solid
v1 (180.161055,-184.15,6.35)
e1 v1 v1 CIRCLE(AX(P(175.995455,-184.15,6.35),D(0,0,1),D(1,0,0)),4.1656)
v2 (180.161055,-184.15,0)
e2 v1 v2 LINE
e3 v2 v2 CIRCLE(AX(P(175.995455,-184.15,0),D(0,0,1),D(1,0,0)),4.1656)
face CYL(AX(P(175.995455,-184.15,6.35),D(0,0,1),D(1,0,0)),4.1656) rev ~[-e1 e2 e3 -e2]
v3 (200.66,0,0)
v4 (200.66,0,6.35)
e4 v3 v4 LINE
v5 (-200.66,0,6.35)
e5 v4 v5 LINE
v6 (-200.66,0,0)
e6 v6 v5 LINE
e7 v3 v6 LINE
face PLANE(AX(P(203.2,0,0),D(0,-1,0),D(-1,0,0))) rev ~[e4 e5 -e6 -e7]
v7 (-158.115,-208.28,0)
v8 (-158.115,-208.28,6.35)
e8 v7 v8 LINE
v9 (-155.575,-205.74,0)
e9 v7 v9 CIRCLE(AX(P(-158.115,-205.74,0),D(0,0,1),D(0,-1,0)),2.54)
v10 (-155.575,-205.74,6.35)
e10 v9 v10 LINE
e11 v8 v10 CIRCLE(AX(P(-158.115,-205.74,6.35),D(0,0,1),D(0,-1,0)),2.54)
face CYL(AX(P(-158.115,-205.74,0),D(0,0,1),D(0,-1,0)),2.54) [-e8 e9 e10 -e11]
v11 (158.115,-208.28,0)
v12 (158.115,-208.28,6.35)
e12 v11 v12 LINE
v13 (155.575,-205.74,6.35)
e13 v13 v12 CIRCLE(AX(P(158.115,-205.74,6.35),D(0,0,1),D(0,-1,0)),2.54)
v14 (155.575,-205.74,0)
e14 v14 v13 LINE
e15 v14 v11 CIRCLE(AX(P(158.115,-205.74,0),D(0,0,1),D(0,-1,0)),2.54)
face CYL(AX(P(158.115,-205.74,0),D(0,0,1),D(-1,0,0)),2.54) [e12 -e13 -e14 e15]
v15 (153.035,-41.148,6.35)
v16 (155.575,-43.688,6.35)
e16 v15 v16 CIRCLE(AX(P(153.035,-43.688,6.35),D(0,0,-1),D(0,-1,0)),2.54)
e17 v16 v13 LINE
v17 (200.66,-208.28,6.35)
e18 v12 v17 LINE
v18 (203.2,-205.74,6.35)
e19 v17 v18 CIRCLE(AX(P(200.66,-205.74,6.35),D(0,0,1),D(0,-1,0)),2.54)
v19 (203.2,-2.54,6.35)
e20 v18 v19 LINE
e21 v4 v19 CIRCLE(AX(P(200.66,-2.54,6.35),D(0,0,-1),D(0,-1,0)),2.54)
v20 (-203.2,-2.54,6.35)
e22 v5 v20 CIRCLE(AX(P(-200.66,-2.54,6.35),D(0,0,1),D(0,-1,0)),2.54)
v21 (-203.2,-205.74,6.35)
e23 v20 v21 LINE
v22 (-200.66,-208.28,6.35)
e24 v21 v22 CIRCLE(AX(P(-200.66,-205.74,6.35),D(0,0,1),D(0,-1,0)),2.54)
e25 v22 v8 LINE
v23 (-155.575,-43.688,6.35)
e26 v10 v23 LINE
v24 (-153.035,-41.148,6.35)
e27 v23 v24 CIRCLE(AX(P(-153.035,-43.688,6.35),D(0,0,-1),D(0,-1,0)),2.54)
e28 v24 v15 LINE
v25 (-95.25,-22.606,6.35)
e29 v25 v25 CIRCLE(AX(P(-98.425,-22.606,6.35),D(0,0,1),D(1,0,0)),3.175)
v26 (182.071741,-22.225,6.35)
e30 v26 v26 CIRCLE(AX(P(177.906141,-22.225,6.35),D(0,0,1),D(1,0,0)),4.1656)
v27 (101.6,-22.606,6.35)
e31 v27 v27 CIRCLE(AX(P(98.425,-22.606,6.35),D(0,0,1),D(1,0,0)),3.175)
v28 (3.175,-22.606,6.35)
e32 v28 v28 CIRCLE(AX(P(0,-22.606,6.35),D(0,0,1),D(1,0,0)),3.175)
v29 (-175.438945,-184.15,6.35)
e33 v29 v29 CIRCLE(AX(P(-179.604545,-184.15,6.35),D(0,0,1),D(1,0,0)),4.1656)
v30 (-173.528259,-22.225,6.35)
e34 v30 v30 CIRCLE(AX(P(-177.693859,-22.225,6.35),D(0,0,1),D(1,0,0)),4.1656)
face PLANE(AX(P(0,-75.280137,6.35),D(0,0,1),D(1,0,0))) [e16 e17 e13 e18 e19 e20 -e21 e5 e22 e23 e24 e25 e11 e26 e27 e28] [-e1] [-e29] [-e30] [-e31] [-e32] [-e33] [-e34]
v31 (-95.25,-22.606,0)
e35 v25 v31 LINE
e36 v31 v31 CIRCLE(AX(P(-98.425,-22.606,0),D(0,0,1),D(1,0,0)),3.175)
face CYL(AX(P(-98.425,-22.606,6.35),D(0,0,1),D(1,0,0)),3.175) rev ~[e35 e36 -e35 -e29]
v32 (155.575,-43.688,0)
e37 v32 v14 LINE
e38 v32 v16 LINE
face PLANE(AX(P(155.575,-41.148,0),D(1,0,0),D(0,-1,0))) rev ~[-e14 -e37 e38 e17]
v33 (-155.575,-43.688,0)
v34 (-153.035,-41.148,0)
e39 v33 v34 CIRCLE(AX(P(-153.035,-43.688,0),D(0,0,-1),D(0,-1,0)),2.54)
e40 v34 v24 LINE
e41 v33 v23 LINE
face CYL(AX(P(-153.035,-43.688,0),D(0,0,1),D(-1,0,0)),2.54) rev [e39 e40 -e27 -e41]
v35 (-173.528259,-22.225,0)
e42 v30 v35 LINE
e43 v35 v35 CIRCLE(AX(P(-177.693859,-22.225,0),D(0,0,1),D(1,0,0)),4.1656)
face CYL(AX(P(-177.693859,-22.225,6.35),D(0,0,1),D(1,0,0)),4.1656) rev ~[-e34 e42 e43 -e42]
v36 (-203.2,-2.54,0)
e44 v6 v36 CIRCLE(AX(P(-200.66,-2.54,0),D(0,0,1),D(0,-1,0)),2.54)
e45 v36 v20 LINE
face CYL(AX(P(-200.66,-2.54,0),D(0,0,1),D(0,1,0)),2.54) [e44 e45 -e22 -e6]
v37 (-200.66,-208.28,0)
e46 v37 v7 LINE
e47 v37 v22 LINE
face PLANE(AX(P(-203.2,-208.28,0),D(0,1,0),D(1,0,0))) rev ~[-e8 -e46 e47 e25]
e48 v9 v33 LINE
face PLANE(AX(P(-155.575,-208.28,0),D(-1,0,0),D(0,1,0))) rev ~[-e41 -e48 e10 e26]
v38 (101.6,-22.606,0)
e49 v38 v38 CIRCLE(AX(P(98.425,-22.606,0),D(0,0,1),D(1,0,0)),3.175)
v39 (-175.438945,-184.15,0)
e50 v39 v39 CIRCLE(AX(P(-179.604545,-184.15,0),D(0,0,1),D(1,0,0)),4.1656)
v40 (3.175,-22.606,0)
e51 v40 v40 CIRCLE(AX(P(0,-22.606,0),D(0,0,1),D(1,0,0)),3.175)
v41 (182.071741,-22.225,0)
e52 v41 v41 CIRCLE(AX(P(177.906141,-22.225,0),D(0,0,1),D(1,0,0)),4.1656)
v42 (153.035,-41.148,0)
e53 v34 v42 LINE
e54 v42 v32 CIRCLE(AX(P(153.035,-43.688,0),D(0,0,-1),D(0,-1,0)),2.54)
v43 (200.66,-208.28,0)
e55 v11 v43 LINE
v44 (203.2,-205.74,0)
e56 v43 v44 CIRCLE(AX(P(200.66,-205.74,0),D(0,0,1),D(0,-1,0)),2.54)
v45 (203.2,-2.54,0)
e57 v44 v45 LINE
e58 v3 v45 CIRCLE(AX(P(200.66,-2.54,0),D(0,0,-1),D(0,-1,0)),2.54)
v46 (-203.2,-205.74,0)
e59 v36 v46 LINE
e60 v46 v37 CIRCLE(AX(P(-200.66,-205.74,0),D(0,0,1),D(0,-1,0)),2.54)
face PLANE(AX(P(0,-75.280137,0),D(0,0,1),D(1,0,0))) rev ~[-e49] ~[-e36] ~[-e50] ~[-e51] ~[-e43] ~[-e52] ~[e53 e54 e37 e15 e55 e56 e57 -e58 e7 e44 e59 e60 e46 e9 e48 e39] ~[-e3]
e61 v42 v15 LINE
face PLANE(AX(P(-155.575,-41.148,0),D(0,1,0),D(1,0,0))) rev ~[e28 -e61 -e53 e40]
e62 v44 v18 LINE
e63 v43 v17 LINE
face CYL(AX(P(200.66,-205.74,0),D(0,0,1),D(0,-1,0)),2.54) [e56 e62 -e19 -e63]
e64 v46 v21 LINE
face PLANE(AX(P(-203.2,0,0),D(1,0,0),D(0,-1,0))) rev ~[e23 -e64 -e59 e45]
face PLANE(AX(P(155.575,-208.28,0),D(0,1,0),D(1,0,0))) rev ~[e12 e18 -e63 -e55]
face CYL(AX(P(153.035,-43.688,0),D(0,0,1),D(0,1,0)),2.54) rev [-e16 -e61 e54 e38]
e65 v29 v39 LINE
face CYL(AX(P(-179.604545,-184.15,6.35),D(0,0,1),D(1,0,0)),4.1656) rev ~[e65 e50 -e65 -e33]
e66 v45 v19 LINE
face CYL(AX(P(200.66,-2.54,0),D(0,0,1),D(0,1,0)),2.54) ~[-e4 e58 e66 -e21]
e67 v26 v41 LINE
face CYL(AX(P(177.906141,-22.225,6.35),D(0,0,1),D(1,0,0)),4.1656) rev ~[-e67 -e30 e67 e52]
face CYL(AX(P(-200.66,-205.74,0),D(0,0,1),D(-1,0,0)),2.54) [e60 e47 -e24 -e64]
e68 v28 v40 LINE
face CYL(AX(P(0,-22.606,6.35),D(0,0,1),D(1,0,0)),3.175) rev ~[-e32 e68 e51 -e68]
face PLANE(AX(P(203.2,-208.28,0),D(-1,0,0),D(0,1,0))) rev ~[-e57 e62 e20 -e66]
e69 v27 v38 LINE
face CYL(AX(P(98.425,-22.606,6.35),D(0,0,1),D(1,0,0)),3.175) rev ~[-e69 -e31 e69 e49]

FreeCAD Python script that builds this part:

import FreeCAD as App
import Part
import Sketcher

V = App.Vector
Q = App.Units.Quantity


def edges_at(feature, points):
    """Names of the edges that pass closest to the given points."""
    edges = feature.Shape.Edges
    near = lambda p: min(range(len(edges)), key=lambda i: edges[i].distToShape(Part.Vertex(*p))[0])
    return sorted({f"Edge{near(p) + 1}" for p in points})

doc = App.newDocument("Part")
body = doc.addObject("PartDesign::Body", "Body")

sketch1 = doc.addObject("Sketcher::SketchObject", "Sketch")
body.addObject(sketch1)
sketch1.AttachmentSupport = (doc.XY_Plane, [""])
sketch1.MapMode = "FlatFace"
sketch1.addGeometry([
    Part.LineSegment(V(203, 0, 0), V(-203, 0, 0)),
    Part.LineSegment(V(-203, 0, 0), V(-203, -208, 0)),
    Part.LineSegment(V(-203, -208, 0), V(-156, -208, 0)),
    Part.LineSegment(V(-156, -208, 0), V(-156, -41, 0)),
    Part.LineSegment(V(-156, -41, 0), V(156, -41, 0)),
    Part.LineSegment(V(156, -41, 0), V(156, -208, 0)),
    Part.LineSegment(V(156, -208, 0), V(203, -208, 0)),
    Part.LineSegment(V(203, -208, 0), V(203, 0, 0)),
], False)
sketch1.addConstraint([
    Sketcher.Constraint("Coincident", 0, 2, 1, 1),
    Sketcher.Constraint("Coincident", 1, 2, 2, 1),
    Sketcher.Constraint("Coincident", 2, 2, 3, 1),
    Sketcher.Constraint("Coincident", 3, 2, 4, 1),
    Sketcher.Constraint("Coincident", 4, 2, 5, 1),
    Sketcher.Constraint("Coincident", 5, 2, 6, 1),
    Sketcher.Constraint("Coincident", 6, 2, 7, 1),
    Sketcher.Constraint("Coincident", 7, 2, 0, 1),
    Sketcher.Constraint("Horizontal", 0),
    Sketcher.Constraint("Vertical", 1),
    Sketcher.Constraint("Horizontal", 2),
    Sketcher.Constraint("Vertical", 3),
    Sketcher.Constraint("Horizontal", 4),
    Sketcher.Constraint("Vertical", 5),
    Sketcher.Constraint("Horizontal", 6),
    Sketcher.Constraint("Vertical", 7),
    Sketcher.Constraint("Symmetric", 0, 2, 7, 2, -1, 1),
    Sketcher.Constraint("Symmetric", 2, 2, 5, 2, -2),
    Sketcher.Constraint("DistanceX", 0, 2, 0, 1, Q("16 in")),
    Sketcher.Constraint("DistanceY", 1, 2, 1, 1, Q("8.2 in")),
    Sketcher.Constraint("DistanceX", 4, 1, 4, 2, Q("12.25 in")),
    Sketcher.Constraint("DistanceY", 3, 1, 3, 2, Q("6.58 in")),
])
pad1 = doc.addObject("PartDesign::Pad", "Pad")
body.addObject(pad1)
pad1.Profile = sketch1
pad1.Length = Q("0.25 in")
doc.recompute()

fillet = doc.addObject("PartDesign::Fillet", "Fillet")
body.addObject(fillet)
fillet.Base = (pad1, edges_at(pad1, [
    (-155.575, -41.148, 3.175),
    (155.575, -41.148, 3.175),
    (155.575, -208.28, 3.175),
    (-155.575, -208.28, 3.175),
    (-203.2, -208.28, 3.175),
    (203.2, -208.28, 3.175),
    (203.2, 0, 3.175),
    (-203.2, 0, 3.175),
]))
fillet.Radius = Q("0.1 in")

sketch2 = doc.addObject("Sketcher::SketchObject", "Sketch001")
body.addObject(sketch2)
sketch2.AttachmentSupport = (doc.XY_Plane, [""])
sketch2.MapMode = "FlatFace"
sketch2.AttachmentOffset = App.Placement(V(0, 0, 0.25 * 25.4), App.Rotation())
sketch2.addGeometry([
    Part.Circle(V(-177.7, -22.2, 0), V(0, 0, 1), 4.2),
    Part.Circle(V(-179.6, -184.2, 0), V(0, 0, 1), 4.2),
    Part.Circle(V(177.9, -22.2, 0), V(0, 0, 1), 4.2),
    Part.Circle(V(176, -184.2, 0), V(0, 0, 1), 4.2),
], False)
sketch2.addConstraint([
    Sketcher.Constraint("Equal", 0, 1),
    Sketcher.Constraint("Equal", 1, 2),
    Sketcher.Constraint("Equal", 2, 3),
    Sketcher.Constraint("Horizontal", 0, 3, 2, 3),
    Sketcher.Constraint("Horizontal", 1, 3, 3, 3),
    Sketcher.Constraint("Diameter", 0, Q("0.328 in")),
    Sketcher.Constraint("DistanceX", 0, 3, 2, 3, Q("14 in")),
    Sketcher.Constraint("DistanceX", 1, 3, 3, 3, Q("14 in")),
    Sketcher.Constraint("DistanceY", 1, 3, -1, 1, Q("7.25 in")),
    Sketcher.Constraint("DistanceY", 0, 3, -1, 1, Q("0.875 in")),
    Sketcher.Constraint("DistanceX", 0, 3, -1, 1, 177.693859),
    Sketcher.Constraint("DistanceX", 1, 3, -1, 1, 179.604545),
])
pocket1 = doc.addObject("PartDesign::Pocket", "Pocket")
body.addObject(pocket1)
pocket1.Profile = sketch2
pocket1.Length = Q("1 in")

sketch3 = doc.addObject("Sketcher::SketchObject", "Sketch002")
body.addObject(sketch3)
sketch3.AttachmentSupport = (doc.XY_Plane, [""])
sketch3.MapMode = "FlatFace"
sketch3.AttachmentOffset = App.Placement(V(0, 0, 0.25 * 25.4), App.Rotation())
sketch3.addGeometry([
    Part.Circle(V(0, -22.6, 0), V(0, 0, 1), 3.2),
    Part.Circle(V(-98.4, -22.6, 0), V(0, 0, 1), 3.2),
    Part.Circle(V(98.4, -22.6, 0), V(0, 0, 1), 3.2),
], False)
sketch3.addConstraint([
    Sketcher.Constraint("Equal", 0, 1),
    Sketcher.Constraint("Equal", 1, 2),
    Sketcher.Constraint("Symmetric", 1, 3, 2, 3, -2),
    Sketcher.Constraint("PointOnObject", 0, 3, -2),
    Sketcher.Constraint("Horizontal", 0, 3, 1, 3),
    Sketcher.Constraint("Diameter", 0, Q("0.25 in")),
    Sketcher.Constraint("DistanceY", 0, 3, -1, 1, Q("0.89 in")),
    Sketcher.Constraint("DistanceX", 1, 3, 2, 3, Q("7.75 in")),
])
pocket2 = doc.addObject("PartDesign::Pocket", "Pocket001")
body.addObject(pocket2)
pocket2.Profile = sketch3
pocket2.Length = Q("1 in")

doc.recompute()
